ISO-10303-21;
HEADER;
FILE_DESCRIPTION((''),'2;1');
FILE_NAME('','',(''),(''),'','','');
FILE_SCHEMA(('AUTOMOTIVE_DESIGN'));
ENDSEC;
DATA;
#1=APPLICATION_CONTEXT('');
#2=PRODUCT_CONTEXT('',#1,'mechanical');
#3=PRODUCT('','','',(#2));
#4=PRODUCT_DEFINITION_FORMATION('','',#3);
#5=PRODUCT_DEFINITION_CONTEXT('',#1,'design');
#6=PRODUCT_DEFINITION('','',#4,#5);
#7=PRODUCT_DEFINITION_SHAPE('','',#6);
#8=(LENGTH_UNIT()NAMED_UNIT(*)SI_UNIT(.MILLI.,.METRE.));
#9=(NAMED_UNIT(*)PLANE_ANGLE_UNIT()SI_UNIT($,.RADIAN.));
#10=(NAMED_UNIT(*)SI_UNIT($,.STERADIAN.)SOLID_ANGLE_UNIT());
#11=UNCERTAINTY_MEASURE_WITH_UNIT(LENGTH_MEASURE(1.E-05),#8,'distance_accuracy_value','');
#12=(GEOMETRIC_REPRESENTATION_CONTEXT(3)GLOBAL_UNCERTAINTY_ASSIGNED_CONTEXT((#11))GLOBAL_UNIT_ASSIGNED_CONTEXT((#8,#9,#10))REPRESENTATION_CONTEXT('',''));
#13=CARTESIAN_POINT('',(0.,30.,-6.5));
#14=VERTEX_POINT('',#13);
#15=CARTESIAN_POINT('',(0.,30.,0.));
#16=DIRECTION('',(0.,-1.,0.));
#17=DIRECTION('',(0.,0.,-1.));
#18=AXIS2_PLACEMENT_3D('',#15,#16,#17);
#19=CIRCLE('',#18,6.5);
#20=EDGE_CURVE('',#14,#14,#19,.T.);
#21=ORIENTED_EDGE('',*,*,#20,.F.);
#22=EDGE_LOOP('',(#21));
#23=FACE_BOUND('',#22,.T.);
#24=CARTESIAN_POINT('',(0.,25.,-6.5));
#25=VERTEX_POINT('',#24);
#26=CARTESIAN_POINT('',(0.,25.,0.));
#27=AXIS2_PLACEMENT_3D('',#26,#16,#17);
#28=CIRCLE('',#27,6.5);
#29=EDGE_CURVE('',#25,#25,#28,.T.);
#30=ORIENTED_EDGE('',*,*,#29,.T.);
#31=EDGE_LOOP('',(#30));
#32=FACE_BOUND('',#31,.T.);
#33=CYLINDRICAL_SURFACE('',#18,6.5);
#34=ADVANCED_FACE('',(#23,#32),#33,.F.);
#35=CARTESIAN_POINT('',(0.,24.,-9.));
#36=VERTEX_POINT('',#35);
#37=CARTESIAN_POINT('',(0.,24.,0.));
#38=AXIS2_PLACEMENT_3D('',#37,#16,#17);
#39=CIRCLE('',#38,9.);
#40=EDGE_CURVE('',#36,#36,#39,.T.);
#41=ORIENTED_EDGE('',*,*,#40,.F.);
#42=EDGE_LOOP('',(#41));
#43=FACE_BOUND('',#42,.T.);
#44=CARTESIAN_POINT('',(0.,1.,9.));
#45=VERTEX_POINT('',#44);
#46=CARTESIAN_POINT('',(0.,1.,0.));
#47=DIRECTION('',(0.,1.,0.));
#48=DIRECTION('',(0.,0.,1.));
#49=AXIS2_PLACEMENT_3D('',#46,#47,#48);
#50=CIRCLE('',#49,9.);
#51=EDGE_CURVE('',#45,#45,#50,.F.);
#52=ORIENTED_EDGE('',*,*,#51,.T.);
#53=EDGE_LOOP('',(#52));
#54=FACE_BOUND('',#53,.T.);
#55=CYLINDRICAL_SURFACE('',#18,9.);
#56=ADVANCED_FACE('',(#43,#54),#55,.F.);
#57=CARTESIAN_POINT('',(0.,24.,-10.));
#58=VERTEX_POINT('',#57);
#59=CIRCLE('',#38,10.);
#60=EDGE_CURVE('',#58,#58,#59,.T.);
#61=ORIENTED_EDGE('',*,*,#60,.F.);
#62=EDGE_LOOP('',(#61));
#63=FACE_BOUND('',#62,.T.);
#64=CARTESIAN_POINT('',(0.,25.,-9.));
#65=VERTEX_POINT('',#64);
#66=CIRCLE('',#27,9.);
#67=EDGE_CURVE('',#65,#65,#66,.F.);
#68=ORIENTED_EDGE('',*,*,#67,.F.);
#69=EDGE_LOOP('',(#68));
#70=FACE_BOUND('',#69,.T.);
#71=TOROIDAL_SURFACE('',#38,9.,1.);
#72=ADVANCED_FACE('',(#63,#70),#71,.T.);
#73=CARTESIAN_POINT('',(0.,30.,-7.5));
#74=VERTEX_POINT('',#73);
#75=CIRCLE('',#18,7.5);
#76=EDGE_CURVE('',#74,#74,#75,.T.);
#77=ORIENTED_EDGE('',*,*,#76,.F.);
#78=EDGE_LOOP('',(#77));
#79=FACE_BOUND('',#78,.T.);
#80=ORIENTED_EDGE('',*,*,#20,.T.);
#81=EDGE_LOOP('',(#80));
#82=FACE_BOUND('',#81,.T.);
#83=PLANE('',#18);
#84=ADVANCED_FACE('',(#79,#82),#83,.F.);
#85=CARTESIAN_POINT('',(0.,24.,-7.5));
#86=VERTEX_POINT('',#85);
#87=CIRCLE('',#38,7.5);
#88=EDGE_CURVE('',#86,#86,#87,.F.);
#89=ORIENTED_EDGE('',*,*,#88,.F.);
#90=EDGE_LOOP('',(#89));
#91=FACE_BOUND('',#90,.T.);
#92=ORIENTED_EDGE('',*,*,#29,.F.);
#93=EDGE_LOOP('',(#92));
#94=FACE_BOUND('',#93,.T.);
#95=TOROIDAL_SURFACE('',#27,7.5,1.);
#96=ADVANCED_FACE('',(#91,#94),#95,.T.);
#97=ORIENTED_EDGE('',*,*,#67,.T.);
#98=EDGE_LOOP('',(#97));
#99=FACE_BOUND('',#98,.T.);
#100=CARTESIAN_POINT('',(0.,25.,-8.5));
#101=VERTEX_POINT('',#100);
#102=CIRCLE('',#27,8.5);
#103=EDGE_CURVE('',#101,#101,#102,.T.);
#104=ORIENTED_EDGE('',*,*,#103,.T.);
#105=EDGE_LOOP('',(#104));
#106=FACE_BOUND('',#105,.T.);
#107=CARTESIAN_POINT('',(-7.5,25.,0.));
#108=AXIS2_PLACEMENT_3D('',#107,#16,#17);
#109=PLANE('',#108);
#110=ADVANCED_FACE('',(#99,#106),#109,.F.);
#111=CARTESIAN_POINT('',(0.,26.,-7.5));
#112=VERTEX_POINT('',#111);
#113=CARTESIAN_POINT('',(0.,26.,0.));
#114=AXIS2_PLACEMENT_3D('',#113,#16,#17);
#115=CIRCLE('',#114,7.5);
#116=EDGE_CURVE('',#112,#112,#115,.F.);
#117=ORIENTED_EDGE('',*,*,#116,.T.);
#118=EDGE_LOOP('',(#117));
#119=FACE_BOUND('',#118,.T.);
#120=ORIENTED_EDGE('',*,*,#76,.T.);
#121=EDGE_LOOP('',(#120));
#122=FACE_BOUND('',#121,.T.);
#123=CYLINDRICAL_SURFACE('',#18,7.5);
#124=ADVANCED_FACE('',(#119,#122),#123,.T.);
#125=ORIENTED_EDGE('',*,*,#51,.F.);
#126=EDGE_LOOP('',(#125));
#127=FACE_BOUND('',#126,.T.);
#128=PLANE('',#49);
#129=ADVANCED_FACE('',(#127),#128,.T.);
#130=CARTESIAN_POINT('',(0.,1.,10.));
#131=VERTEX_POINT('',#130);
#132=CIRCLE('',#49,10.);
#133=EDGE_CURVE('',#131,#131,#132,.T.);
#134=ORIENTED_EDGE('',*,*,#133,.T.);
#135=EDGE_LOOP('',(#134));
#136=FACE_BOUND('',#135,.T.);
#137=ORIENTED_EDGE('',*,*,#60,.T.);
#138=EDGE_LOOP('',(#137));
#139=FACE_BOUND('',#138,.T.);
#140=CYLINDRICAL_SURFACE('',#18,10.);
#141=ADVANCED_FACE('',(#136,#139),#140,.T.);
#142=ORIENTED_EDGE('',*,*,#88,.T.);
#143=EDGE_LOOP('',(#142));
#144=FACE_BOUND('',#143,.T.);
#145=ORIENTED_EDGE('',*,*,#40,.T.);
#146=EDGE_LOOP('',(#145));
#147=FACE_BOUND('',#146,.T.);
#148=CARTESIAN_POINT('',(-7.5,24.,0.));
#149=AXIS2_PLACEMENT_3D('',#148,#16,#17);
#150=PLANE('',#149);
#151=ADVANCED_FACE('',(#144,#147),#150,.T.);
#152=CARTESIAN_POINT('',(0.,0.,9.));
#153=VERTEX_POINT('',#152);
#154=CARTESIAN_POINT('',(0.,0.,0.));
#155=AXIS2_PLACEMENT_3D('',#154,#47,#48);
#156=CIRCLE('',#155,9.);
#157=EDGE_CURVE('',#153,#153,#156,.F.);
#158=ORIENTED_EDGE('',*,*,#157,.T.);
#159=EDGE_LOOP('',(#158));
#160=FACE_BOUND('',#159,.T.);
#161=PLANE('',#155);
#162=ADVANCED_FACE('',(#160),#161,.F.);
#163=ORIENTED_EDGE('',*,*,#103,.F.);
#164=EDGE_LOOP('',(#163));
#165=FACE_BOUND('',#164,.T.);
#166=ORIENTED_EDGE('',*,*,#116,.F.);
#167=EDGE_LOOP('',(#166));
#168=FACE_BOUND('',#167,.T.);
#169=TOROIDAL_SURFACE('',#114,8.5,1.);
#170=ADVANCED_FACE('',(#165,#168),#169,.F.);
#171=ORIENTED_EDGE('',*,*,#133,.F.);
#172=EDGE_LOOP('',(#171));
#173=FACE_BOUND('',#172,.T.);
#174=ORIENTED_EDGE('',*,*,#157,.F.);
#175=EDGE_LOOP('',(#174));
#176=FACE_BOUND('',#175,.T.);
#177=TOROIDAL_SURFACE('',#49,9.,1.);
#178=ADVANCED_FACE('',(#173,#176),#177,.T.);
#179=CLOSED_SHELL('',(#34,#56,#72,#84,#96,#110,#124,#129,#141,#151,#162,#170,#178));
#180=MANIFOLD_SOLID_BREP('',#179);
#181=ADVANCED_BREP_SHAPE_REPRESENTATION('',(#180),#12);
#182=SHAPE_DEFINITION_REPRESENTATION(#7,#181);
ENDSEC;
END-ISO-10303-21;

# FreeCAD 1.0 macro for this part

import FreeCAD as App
import Part
import Sketcher


def edges_at(feature, points):
    """Names of the edges that pass closest to the given points."""
    edges = feature.Shape.Edges
    near = lambda p: min(range(len(edges)), key=lambda i: edges[i].distToShape(Part.Vertex(*p))[0])
    return sorted({f"Edge{near(p) + 1}" for p in points})


def faces_at(feature, points):
    """Names of the faces that lie closest to the given points."""
    faces = feature.Shape.Faces
    near = lambda p: min(range(len(faces)), key=lambda i: faces[i].distToShape(Part.Vertex(*p))[0])
    return sorted({f"Face{near(p) + 1}" for p in points})

doc = App.newDocument("Part")
body = doc.addObject("PartDesign::Body", "Body")

# Sketch on XY plane
sketch1 = doc.addObject("Sketcher::SketchObject", "Sketch")
body.addObject(sketch1)
sketch1.AttachmentSupport = (doc.XY_Plane, [""])
sketch1.MapMode = "FlatFace"
sketch1.addGeometry([
    Part.LineSegment(App.Vector(0, 0, 0), App.Vector(0, 30, 0)),  # 0
    Part.LineSegment(App.Vector(0, 30, 0), App.Vector(-7.5, 30, 0)),  # 1
    Part.LineSegment(App.Vector(-7.5, 30, 0), App.Vector(-7.5, 25, 0)),  # 2
    Part.LineSegment(App.Vector(-7.5, 25, 0), App.Vector(-10, 25, 0)),  # 3
    Part.LineSegment(App.Vector(-10, 25, 0), App.Vector(-10, 0, 0)),  # 4
    Part.LineSegment(App.Vector(-10, 0, 0), App.Vector(0, 0, 0)),  # 5
], False)
sketch1.addConstraint([
    Sketcher.Constraint("Coincident", 0, 2, 1, 1),
    Sketcher.Constraint("Coincident", 1, 2, 2, 1),
    Sketcher.Constraint("Coincident", 2, 2, 3, 1),
    Sketcher.Constraint("Coincident", 3, 2, 4, 1),
    Sketcher.Constraint("Coincident", 4, 2, 5, 1),
    Sketcher.Constraint("Coincident", 5, 2, 0, 1),
    Sketcher.Constraint("Vertical", 0),
    Sketcher.Constraint("Horizontal", 1),
    Sketcher.Constraint("Vertical", 2),
    Sketcher.Constraint("Horizontal", 3),
    Sketcher.Constraint("Vertical", 4),
    Sketcher.Constraint("Horizontal", 5),
    Sketcher.Constraint("Coincident", 5, 2, -1, 1),
    Sketcher.Constraint("DistanceX", 5, 1, 5, 2, 10.0),
    Sketcher.Constraint("DistanceY", 0, 1, 0, 2, 30.0),
    Sketcher.Constraint("DistanceY", 2, 2, 2, 1, 5.0),
    Sketcher.Constraint("DistanceX", 1, 2, 1, 1, 7.5),
])
revolution = doc.addObject("PartDesign::Revolution", "Revolution")
body.addObject(revolution)
revolution.Profile = sketch1
revolution.ReferenceAxis = (sketch1, ["V_Axis"])
revolution.Angle = 360
doc.recompute()

thickness = doc.addObject("PartDesign::Thickness", "Thickness")
body.addObject(thickness)
thickness.Base = (revolution, faces_at(revolution, [(0, 30, 0)]))
thickness.Value = 1
thickness.Reversed = True
thickness.Join = "Intersection"
doc.recompute()

fillet = doc.addObject("PartDesign::Fillet", "Fillet")
body.addObject(fillet)
fillet.Base = (thickness, edges_at(thickness, [(7.5, 25, 0), (10, 25, 0), (10, 0, 0)]))
fillet.Radius = 1
doc.recompute()

fillet2 = doc.addObject("PartDesign::Fillet", "Fillet001")
body.addObject(fillet2)
fillet2.Base = (fillet, edges_at(fillet, [(6.5, 24, 0)]))
fillet2.Radius = 1

doc.recompute()
